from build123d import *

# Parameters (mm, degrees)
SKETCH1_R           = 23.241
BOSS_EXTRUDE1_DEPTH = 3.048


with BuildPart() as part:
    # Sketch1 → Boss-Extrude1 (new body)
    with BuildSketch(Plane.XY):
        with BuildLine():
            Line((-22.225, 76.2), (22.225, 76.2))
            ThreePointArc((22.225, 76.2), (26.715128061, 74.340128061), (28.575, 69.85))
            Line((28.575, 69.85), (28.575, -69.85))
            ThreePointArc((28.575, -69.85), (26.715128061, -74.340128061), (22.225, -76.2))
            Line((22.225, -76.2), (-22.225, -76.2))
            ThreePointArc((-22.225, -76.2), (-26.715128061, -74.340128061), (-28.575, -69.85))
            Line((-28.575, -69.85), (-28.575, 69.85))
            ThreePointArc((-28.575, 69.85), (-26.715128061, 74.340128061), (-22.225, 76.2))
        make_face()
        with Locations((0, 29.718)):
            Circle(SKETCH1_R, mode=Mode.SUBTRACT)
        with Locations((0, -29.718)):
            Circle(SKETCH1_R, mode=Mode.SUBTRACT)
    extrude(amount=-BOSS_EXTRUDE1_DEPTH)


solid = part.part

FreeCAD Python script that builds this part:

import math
import FreeCAD as App
import Part
import Sketcher

V = App.Vector
Q = App.Units.Quantity

doc = App.newDocument("Part")
params = doc.addObject("Spreadsheet::Sheet", "Params")
for row, (alias, value) in enumerate([
    ("sketch1_diameter", "1.83 in"),
    ("sketch1_radius", "0.25 in"),
    ("sketch1_height", "5.5 in"),
    ("pad1_length", "0.12 in"),
], start=1):
    params.set(f"A{row}", alias)
    params.set(f"B{row}", "=" + value)
    params.setAlias(f"B{row}", alias)

body = doc.addObject("PartDesign::Body", "Body")

# Sketch on XY plane
sketch1 = body.newObject("Sketcher::SketchObject", "Sketch")
sketch1.AttachmentSupport = (doc.getObject("XY_Plane"), [""])
sketch1.MapMode = "FlatFace"
sketch1.addGeometry([
    Part.LineSegment(V(22, 76, 0), V(-22, 76, 0)),  # 0
    Part.ArcOfCircle(Part.Circle(V(-22, 70, 0), V(0, 0, 1), 6), math.radians(90), math.radians(180)),  # 1
    Part.LineSegment(V(-29, 70, 0), V(-29, -70, 0)),  # 2
    Part.ArcOfCircle(Part.Circle(V(-22, -70, 0), V(0, 0, 1), 6), math.radians(180), math.radians(270)),  # 3
    Part.LineSegment(V(-22, -76, 0), V(22, -76, 0)),  # 4
    Part.ArcOfCircle(Part.Circle(V(22, -70, 0), V(0, 0, 1), 6), math.radians(-90), math.radians(0)),  # 5
    Part.LineSegment(V(29, -70, 0), V(29, 70, 0)),  # 6
    Part.ArcOfCircle(Part.Circle(V(22, 70, 0), V(0, 0, 1), 6), math.radians(0), math.radians(90)),  # 7
    Part.Circle(V(0, -30, 0), V(0, 0, 1), 23),  # 8
    Part.Circle(V(0, 30, 0), V(0, 0, 1), 23),  # 9
], False)
sketch1.addConstraint([
    Sketcher.Constraint("Tangent", 0, 2, 1, 1),
    Sketcher.Constraint("Tangent", 1, 2, 2, 1),
    Sketcher.Constraint("Tangent", 2, 2, 3, 1),
    Sketcher.Constraint("Tangent", 3, 2, 4, 1),
    Sketcher.Constraint("Tangent", 4, 2, 5, 1),
    Sketcher.Constraint("Tangent", 5, 2, 6, 1),
    Sketcher.Constraint("Tangent", 6, 2, 7, 1),
    Sketcher.Constraint("Tangent", 7, 2, 0, 1),
    Sketcher.Constraint("Horizontal", 0),
    Sketcher.Constraint("Vertical", 2),
    Sketcher.Constraint("Horizontal", 4),
    Sketcher.Constraint("Vertical", 6),
    Sketcher.Constraint("Equal", 1, 3),
    Sketcher.Constraint("Equal", 3, 5),
    Sketcher.Constraint("Equal", 5, 7),
    Sketcher.Constraint("Equal", 8, 9),
    Sketcher.Constraint("Symmetric", 1, 3, 5, 3, -1, 1),
    Sketcher.Constraint("Symmetric", 8, 3, 9, 3, -1, 1),
    Sketcher.Constraint("PointOnObject", 8, 3, -2),
    Sketcher.Constraint("Diameter", 8, Q("1.83 in")),
    Sketcher.Constraint("Radius", 1, Q("0.25 in")),
    Sketcher.Constraint("DistanceY", 2, 2, 2, 1, Q("5.5 in")),
    Sketcher.Constraint("DistanceX", 1, 2, 7, 3, Q("2 in")),
    Sketcher.Constraint("DistanceY", 8, 3, -1, 1, Q("1.17 in")),
])
sketch1.setExpression("Constraints[19]", "Params.sketch1_diameter")
sketch1.setExpression("Constraints[20]", "Params.sketch1_radius")
sketch1.setExpression("Constraints[21]", "Params.sketch1_height")
pad1 = body.newObject("PartDesign::Pad", "Pad")
pad1.Profile = sketch1
pad1.setExpression("Length", "Params.pad1_length")
pad1.Reversed = True

doc.recompute()
